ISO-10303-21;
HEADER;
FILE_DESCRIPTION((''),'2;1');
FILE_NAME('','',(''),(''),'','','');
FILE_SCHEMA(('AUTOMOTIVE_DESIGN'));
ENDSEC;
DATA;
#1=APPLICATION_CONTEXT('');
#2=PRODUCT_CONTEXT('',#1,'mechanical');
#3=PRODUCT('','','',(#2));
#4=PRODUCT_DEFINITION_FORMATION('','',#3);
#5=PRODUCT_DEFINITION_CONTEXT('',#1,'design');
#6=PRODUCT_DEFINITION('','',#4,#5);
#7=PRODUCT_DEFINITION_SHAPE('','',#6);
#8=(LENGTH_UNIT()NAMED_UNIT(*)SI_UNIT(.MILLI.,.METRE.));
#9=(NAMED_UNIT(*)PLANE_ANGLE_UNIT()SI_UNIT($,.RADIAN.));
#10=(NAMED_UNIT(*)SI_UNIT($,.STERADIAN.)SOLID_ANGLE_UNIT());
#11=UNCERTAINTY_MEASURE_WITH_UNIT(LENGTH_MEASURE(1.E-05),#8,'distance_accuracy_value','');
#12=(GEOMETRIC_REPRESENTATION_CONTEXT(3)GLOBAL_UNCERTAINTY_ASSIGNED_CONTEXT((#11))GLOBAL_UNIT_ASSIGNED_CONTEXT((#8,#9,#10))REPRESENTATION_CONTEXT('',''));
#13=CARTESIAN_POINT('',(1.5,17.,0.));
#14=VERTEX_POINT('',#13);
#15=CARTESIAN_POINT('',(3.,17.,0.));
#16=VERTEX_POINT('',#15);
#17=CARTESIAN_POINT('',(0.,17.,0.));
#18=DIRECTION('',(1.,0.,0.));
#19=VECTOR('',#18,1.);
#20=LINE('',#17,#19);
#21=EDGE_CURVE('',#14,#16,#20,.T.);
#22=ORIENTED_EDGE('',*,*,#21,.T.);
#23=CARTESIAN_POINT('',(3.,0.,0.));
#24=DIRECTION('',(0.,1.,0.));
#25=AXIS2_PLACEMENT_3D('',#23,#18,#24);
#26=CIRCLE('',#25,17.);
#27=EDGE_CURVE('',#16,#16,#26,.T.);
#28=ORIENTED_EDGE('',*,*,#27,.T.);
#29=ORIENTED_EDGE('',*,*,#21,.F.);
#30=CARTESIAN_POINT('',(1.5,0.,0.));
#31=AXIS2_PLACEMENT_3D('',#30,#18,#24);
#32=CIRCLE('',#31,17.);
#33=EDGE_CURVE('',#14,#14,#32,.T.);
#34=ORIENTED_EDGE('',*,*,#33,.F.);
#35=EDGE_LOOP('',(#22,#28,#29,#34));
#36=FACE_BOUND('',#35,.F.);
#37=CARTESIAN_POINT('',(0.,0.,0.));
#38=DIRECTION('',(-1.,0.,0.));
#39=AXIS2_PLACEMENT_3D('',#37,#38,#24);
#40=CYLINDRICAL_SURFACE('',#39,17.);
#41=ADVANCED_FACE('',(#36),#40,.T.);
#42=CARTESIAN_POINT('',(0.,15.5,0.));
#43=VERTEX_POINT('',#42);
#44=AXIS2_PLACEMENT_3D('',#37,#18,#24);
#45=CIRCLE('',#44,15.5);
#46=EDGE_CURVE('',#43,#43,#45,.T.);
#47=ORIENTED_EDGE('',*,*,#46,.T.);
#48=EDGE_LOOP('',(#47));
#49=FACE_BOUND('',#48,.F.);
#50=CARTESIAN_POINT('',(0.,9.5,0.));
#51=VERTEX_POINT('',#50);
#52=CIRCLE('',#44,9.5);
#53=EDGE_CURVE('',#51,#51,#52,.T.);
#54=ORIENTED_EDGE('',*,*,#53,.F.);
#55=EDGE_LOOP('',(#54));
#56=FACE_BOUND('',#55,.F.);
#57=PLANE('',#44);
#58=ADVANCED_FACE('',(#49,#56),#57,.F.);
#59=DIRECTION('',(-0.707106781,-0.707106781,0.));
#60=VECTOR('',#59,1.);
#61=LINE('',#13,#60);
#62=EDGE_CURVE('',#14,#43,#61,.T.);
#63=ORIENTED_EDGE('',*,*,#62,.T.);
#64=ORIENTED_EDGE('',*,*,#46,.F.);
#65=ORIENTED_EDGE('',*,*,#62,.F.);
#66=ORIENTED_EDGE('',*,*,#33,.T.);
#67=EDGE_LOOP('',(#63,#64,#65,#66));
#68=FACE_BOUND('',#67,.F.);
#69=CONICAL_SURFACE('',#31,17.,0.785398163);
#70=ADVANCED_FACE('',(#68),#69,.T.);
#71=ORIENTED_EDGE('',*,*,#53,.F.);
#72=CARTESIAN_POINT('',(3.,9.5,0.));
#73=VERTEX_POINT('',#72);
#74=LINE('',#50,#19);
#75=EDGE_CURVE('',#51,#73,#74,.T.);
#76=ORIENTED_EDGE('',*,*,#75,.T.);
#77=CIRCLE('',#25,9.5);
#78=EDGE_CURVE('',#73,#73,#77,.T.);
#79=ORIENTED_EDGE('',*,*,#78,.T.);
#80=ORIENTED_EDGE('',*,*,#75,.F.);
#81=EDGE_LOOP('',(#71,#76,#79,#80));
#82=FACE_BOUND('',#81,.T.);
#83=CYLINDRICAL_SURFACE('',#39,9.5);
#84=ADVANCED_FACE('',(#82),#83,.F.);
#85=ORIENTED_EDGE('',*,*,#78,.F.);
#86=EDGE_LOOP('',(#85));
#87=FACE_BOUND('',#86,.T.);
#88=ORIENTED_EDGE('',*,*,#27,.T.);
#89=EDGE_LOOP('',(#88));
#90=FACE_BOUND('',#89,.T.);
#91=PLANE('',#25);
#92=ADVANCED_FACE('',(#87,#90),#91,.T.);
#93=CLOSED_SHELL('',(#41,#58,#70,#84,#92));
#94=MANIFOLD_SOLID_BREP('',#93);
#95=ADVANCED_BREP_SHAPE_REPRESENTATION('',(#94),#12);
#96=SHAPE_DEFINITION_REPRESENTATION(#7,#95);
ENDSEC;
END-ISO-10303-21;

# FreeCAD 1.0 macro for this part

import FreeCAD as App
import Part
import Sketcher


def edges_at(feature, points):
    """Names of the edges that pass closest to the given points."""
    edges = feature.Shape.Edges
    near = lambda p: min(range(len(edges)), key=lambda i: edges[i].distToShape(Part.Vertex(*p))[0])
    return sorted({f"Edge{near(p) + 1}" for p in points})

doc = App.newDocument("Part")
body = doc.addObject("PartDesign::Body", "Body")

# Sketch on YZ plane
sketch1 = doc.addObject("Sketcher::SketchObject", "Sketch")
body.addObject(sketch1)
sketch1.AttachmentSupport = (doc.YZ_Plane, [""])
sketch1.MapMode = "FlatFace"
sketch1.addGeometry(Part.Circle(App.Vector(0, 0, 0), App.Vector(0, 0, 1), 17), False)
sketch1.addGeometry(Part.Circle(App.Vector(0, 0, 0), App.Vector(0, 0, 1), 9.5), False)
sketch1.addConstraint(Sketcher.Constraint("Coincident", 0, 3, -1, 1))
sketch1.addConstraint(Sketcher.Constraint("Coincident", 1, 3, -1, 1))
sketch1.addConstraint(Sketcher.Constraint("Diameter", 0, 34.0))
sketch1.addConstraint(Sketcher.Constraint("Diameter", 1, 19.0))
pad1 = doc.addObject("PartDesign::Pad", "Pad")
body.addObject(pad1)
pad1.Profile = sketch1
pad1.Length = 3
doc.recompute()

chamfer = doc.addObject("PartDesign::Chamfer", "Chamfer")
body.addObject(chamfer)
chamfer.Base = (pad1, edges_at(pad1, [(0, -17, 0)]))
chamfer.Size = 1.5

doc.recompute()
